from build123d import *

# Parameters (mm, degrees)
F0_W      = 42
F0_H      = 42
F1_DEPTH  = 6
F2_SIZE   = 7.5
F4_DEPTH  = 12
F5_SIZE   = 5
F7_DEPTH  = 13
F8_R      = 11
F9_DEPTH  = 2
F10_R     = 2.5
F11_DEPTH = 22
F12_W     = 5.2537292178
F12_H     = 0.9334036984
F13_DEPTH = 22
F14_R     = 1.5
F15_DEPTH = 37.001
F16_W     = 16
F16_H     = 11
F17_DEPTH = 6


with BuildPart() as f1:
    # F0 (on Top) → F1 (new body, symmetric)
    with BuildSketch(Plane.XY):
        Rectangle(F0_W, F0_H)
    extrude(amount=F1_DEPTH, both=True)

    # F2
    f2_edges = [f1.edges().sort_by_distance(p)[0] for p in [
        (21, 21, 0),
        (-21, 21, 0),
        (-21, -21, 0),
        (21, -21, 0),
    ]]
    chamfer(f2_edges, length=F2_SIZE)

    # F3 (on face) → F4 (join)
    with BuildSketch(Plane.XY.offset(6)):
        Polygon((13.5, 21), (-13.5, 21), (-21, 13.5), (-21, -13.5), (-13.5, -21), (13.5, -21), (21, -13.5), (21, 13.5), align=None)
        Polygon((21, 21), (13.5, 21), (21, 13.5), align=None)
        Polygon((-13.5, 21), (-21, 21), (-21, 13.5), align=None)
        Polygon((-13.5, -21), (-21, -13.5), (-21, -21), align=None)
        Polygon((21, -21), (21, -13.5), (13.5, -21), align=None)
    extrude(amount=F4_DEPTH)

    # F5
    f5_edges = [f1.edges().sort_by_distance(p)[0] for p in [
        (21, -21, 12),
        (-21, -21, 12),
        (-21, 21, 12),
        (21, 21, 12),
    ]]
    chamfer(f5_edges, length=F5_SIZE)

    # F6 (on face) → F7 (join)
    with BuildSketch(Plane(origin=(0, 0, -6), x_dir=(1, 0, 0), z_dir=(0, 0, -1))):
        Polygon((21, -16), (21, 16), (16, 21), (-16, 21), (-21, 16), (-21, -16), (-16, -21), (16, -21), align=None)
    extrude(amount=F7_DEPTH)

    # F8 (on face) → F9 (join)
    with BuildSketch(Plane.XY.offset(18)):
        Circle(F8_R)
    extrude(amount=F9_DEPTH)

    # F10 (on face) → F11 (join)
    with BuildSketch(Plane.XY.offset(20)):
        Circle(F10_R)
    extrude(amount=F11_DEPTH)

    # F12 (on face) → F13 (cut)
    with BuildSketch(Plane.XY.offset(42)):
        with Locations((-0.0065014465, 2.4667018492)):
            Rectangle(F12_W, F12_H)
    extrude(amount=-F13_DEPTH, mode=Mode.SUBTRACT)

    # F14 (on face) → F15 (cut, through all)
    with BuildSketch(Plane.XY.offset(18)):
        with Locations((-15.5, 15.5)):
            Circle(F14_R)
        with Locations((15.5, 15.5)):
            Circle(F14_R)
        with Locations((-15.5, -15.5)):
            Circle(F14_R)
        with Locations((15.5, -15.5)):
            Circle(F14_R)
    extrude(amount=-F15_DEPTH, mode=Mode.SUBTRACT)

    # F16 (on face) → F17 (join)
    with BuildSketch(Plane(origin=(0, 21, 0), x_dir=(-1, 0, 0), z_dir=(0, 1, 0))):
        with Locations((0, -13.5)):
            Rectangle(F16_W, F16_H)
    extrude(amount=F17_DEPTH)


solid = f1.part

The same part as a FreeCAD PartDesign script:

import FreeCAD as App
import Part
import Sketcher
Q = App.Units.Quantity


def edges_at(feature, points):
    """Names of the edges that pass closest to the given points."""
    edges = feature.Shape.Edges
    near = lambda p: min(range(len(edges)), key=lambda i: edges[i].distToShape(Part.Vertex(*p))[0])
    return sorted({f"Edge{near(p) + 1}" for p in points})


def add_polygon(sketch, points):
    """Adds a closed chain of lines whose ends are joined by coincident constraints."""
    first, n = sketch.GeometryCount, len(points)
    for a, b in zip(points, points[1:] + points[:1]):
        sketch.addGeometry(Part.LineSegment(App.Vector(*a, 0), App.Vector(*b, 0)), False)
    for i in range(n):
        sketch.addConstraint(Sketcher.Constraint("Coincident", first + i, 2, first + (i + 1) % n, 1))

doc = App.newDocument("Part")
params = doc.addObject("Spreadsheet::Sheet", "Params")
for row, (alias, value) in enumerate([
    ("sketch1_width", "42 mm"),
    ("pad1_length", "12 mm"),
    ("chamfer_size", "7.5 mm"),
    ("sketch2_width", "42 mm"),
    ("pad2_length", "12 mm"),
    ("chamfer2_size", "5 mm"),
    ("sketch3_width", "32 mm"),
    ("pad3_length", "13 mm"),
    ("sketch4_diameter", "22 mm"),
    ("pad4_length", "2 mm"),
    ("sketch5_diameter", "5 mm"),
    ("pad5_length", "22 mm"),
    ("pocket1_length", "22 mm"),
    ("sketch7_diameter", "3 mm"),
    ("sketch8_width", "16 mm"),
    ("sketch8_height", "11 mm"),
    ("pad6_length", "6 mm"),
], start=1):
    params.set(f"A{row}", alias)
    params.set(f"B{row}", "=" + value)
    params.setAlias(f"B{row}", alias)

body = doc.addObject("PartDesign::Body", "Body")

# Sketch on XY plane
sketch1 = doc.addObject("Sketcher::SketchObject", "Sketch")
body.addObject(sketch1)
sketch1.AttachmentSupport = (doc.XY_Plane, [""])
sketch1.MapMode = "FlatFace"
add_polygon(sketch1, [(-21, 21), (-21, -21), (21, -21), (21, 21)])  # lines 0-3
sketch1.addConstraint([
    Sketcher.Constraint("Vertical", 0),
    Sketcher.Constraint("Horizontal", 1),
    Sketcher.Constraint("Vertical", 2),
    Sketcher.Constraint("Horizontal", 3),
    Sketcher.Constraint("Symmetric", 0, 2, 2, 2, -1, 1),
    Sketcher.Constraint("Equal", 3, 0),
    Sketcher.Constraint("DistanceX", 1, 1, 1, 2, Q("42 mm")),
])
sketch1.setExpression("Constraints[10]", "Params.sketch1_width")
pad1 = doc.addObject("PartDesign::Pad", "Pad")
body.addObject(pad1)
pad1.Profile = sketch1
pad1.setExpression("Length", "Params.pad1_length")
pad1.Midplane = True
doc.recompute()

chamfer = doc.addObject("PartDesign::Chamfer", "Chamfer")
body.addObject(chamfer)
chamfer.Base = (pad1, edges_at(pad1, [
    (21, 21, 0),
    (-21, 21, 0),
    (-21, -21, 0),
    (21, -21, 0),
]))
chamfer.setExpression("Size", "Params.chamfer_size")

# Sketch on XY plane
sketch2 = doc.addObject("Sketcher::SketchObject", "Sketch001")
body.addObject(sketch2)
sketch2.AttachmentSupport = (doc.XY_Plane, [""])
sketch2.MapMode = "FlatFace"
sketch2.AttachmentOffset = App.Placement(App.Vector(0, 0, 6), App.Rotation())
add_polygon(sketch2, [(21, 21), (-21, 21), (-21, -21), (21, -21)])  # lines 0-3
sketch2.addConstraint([
    Sketcher.Constraint("Horizontal", 0),
    Sketcher.Constraint("Vertical", 1),
    Sketcher.Constraint("Horizontal", 2),
    Sketcher.Constraint("Vertical", 3),
    Sketcher.Constraint("Symmetric", 0, 2, 2, 2, -1, 1),
    Sketcher.Constraint("Equal", 2, 1),
    Sketcher.Constraint("DistanceX", 0, 2, 0, 1, Q("42 mm")),
])
sketch2.setExpression("Constraints[10]", "Params.sketch2_width")
pad2 = doc.addObject("PartDesign::Pad", "Pad001")
body.addObject(pad2)
pad2.Profile = sketch2
pad2.setExpression("Length", "Params.pad2_length")
doc.recompute()

chamfer2 = doc.addObject("PartDesign::Chamfer", "Chamfer001")
body.addObject(chamfer2)
chamfer2.Base = (pad2, edges_at(pad2, [
    (21, -21, 12),
    (-21, -21, 12),
    (-21, 21, 12),
    (21, 21, 12),
]))
chamfer2.setExpression("Size", "Params.chamfer2_size")

# Sketch on XY plane
sketch3 = doc.addObject("Sketcher::SketchObject", "Sketch002")
body.addObject(sketch3)
sketch3.AttachmentSupport = (doc.XY_Plane, [""])
sketch3.MapMode = "FlatFace"
sketch3.AttachmentOffset = App.Placement(App.Vector(0, 0, -6), App.Rotation())
add_polygon(sketch3, [(21, 16), (21, -16), (16, -21), (-16, -21), (-21, -16), (-21, 16), (-16, 21), (16, 21)])  # lines 0-7
sketch3.addConstraint([
    Sketcher.Constraint("Vertical", 0),
    Sketcher.Constraint("Horizontal", 2),
    Sketcher.Constraint("Vertical", 4),
    Sketcher.Constraint("Horizontal", 6),
    Sketcher.Constraint("Symmetric", 0, 2, 4, 2, -1, 1),
    Sketcher.Constraint("Symmetric", 1, 2, 5, 2, -1, 1),
    Sketcher.Constraint("Perpendicular", 1, 3),
    Sketcher.Constraint("Perpendicular", 5, 7),
    Sketcher.Constraint("Horizontal", 0, 2, 3, 2),
    Sketcher.Constraint("Horizontal", 4, 2, 7, 2),
    Sketcher.Constraint("Vertical", 2, 2, 5, 2),
    Sketcher.Constraint("Equal", 6, 0),
    Sketcher.Constraint("DistanceX", 2, 2, 2, 1, Q("32 mm")),
    Sketcher.Constraint("DistanceX", -1, 1, 0, 2, Q("21 mm")),
])
sketch3.setExpression("Constraints[20]", "Params.sketch3_width")
pad3 = doc.addObject("PartDesign::Pad", "Pad002")
body.addObject(pad3)
pad3.Profile = sketch3
pad3.setExpression("Length", "Params.pad3_length")
pad3.Reversed = True

# Sketch on XY plane
sketch4 = doc.addObject("Sketcher::SketchObject", "Sketch003")
body.addObject(sketch4)
sketch4.AttachmentSupport = (doc.XY_Plane, [""])
sketch4.MapMode = "FlatFace"
sketch4.AttachmentOffset = App.Placement(App.Vector(0, 0, 18), App.Rotation())
sketch4.addGeometry(Part.Circle(App.Vector(0, 0, 0), App.Vector(0, 0, 1), 11), False)
sketch4.addConstraint([
    Sketcher.Constraint("Coincident", 0, 3, -1, 1),
    Sketcher.Constraint("Diameter", 0, Q("22 mm")),
])
sketch4.setExpression("Constraints[1]", "Params.sketch4_diameter")
pad4 = doc.addObject("PartDesign::Pad", "Pad003")
body.addObject(pad4)
pad4.Profile = sketch4
pad4.setExpression("Length", "Params.pad4_length")

# Sketch on XY plane
sketch5 = doc.addObject("Sketcher::SketchObject", "Sketch004")
body.addObject(sketch5)
sketch5.AttachmentSupport = (doc.XY_Plane, [""])
sketch5.MapMode = "FlatFace"
sketch5.AttachmentOffset = App.Placement(App.Vector(0, 0, 20), App.Rotation())
sketch5.addGeometry(Part.Circle(App.Vector(0, 0, 0), App.Vector(0, 0, 1), 2.5), False)
sketch5.addConstraint([
    Sketcher.Constraint("Coincident", 0, 3, -1, 1),
    Sketcher.Constraint("Diameter", 0, Q("5 mm")),
])
sketch5.setExpression("Constraints[1]", "Params.sketch5_diameter")
pad5 = doc.addObject("PartDesign::Pad", "Pad004")
body.addObject(pad5)
pad5.Profile = sketch5
pad5.setExpression("Length", "Params.pad5_length")

# Sketch on XY plane
sketch6 = doc.addObject("Sketcher::SketchObject", "Sketch005")
body.addObject(sketch6)
sketch6.AttachmentSupport = (doc.XY_Plane, [""])
sketch6.MapMode = "FlatFace"
sketch6.AttachmentOffset = App.Placement(App.Vector(0, 0, 42), App.Rotation())
add_polygon(sketch6, [(-2.6, 2.9), (-2.6, 2), (2.6, 2), (2.6, 2.9)])  # lines 0-3
sketch6.addConstraint([
    Sketcher.Constraint("Vertical", 0),
    Sketcher.Constraint("Horizontal", 1),
    Sketcher.Constraint("Vertical", 2),
    Sketcher.Constraint("Horizontal", 3),
    Sketcher.Constraint("DistanceY", -1, 1, 0, 2, Q("2 mm")),
    Sketcher.Constraint("DistanceX", 1, 1, 1, 2, Q("5.253729 mm")),
    Sketcher.Constraint("DistanceY", 0, 2, 0, 1, Q("0.933404 mm")),
    Sketcher.Constraint("DistanceX", 0, 2, -1, 1, Q("2.633366 mm")),
])
pocket1 = doc.addObject("PartDesign::Pocket", "Pocket")
body.addObject(pocket1)
pocket1.Profile = sketch6
pocket1.setExpression("Length", "Params.pocket1_length")

# Sketch on XY plane
sketch7 = doc.addObject("Sketcher::SketchObject", "Sketch006")
body.addObject(sketch7)
sketch7.AttachmentSupport = (doc.XY_Plane, [""])
sketch7.MapMode = "FlatFace"
sketch7.AttachmentOffset = App.Placement(App.Vector(0, 0, 18), App.Rotation())
sketch7.addGeometry([
    Part.Circle(App.Vector(-15.5, 15.5, 0), App.Vector(0, 0, 1), 1.5),
    Part.Circle(App.Vector(15.5, 15.5, 0), App.Vector(0, 0, 1), 1.5),
    Part.Circle(App.Vector(-15.5, -15.5, 0), App.Vector(0, 0, 1), 1.5),
    Part.Circle(App.Vector(15.5, -15.5, 0), App.Vector(0, 0, 1), 1.5),
], False)
sketch7.addConstraint([
    Sketcher.Constraint("Equal", 0, 1),
    Sketcher.Constraint("Equal", 1, 2),
    Sketcher.Constraint("Equal", 2, 3),
    Sketcher.Constraint("Symmetric", 1, 3, 2, 3, -1, 1),
    Sketcher.Constraint("Symmetric", 0, 3, 3, 3, -1, 1),
    Sketcher.Constraint("Symmetric", 0, 3, 1, 3, -2),
    Sketcher.Constraint("Diameter", 0, Q("3 mm")),
    Sketcher.Constraint("DistanceX", 0, 3, 1, 3, Q("31 mm")),
    Sketcher.Constraint("DistanceY", 2, 3, 0, 3, Q("31 mm")),
])
sketch7.setExpression("Constraints[6]", "Params.sketch7_diameter")
pocket2 = doc.addObject("PartDesign::Pocket", "Pocket001")
body.addObject(pocket2)
pocket2.Profile = sketch7
pocket2.Type = "ThroughAll"

# Sketch on XZ plane
sketch8 = doc.addObject("Sketcher::SketchObject", "Sketch007")
body.addObject(sketch8)
sketch8.AttachmentSupport = (doc.XZ_Plane, [""])
sketch8.MapMode = "FlatFace"
sketch8.AttachmentOffset = App.Placement(App.Vector(0, 0, -21), App.Rotation())
add_polygon(sketch8, [(8, -8), (8, -19), (-8, -19), (-8, -8)])  # lines 0-3
sketch8.addConstraint([
    Sketcher.Constraint("Vertical", 0),
    Sketcher.Constraint("Horizontal", 1),
    Sketcher.Constraint("Vertical", 2),
    Sketcher.Constraint("Horizontal", 3),
    Sketcher.Constraint("DistanceX", 1, 2, 1, 1, Q("16 mm")),
    Sketcher.Constraint("DistanceY", 0, 2, 0, 1, Q("11 mm")),
    Sketcher.Constraint("DistanceX", -1, 1, 0, 2, Q("8 mm")),
    Sketcher.Constraint("DistanceY", 0, 2, -1, 1, Q("19 mm")),
])
sketch8.setExpression("Constraints[8]", "Params.sketch8_width")
sketch8.setExpression("Constraints[9]", "Params.sketch8_height")
pad6 = doc.addObject("PartDesign::Pad", "Pad005")
body.addObject(pad6)
pad6.Profile = sketch8
pad6.setExpression("Length", "Params.pad6_length")
pad6.Reversed = True

doc.recompute()
